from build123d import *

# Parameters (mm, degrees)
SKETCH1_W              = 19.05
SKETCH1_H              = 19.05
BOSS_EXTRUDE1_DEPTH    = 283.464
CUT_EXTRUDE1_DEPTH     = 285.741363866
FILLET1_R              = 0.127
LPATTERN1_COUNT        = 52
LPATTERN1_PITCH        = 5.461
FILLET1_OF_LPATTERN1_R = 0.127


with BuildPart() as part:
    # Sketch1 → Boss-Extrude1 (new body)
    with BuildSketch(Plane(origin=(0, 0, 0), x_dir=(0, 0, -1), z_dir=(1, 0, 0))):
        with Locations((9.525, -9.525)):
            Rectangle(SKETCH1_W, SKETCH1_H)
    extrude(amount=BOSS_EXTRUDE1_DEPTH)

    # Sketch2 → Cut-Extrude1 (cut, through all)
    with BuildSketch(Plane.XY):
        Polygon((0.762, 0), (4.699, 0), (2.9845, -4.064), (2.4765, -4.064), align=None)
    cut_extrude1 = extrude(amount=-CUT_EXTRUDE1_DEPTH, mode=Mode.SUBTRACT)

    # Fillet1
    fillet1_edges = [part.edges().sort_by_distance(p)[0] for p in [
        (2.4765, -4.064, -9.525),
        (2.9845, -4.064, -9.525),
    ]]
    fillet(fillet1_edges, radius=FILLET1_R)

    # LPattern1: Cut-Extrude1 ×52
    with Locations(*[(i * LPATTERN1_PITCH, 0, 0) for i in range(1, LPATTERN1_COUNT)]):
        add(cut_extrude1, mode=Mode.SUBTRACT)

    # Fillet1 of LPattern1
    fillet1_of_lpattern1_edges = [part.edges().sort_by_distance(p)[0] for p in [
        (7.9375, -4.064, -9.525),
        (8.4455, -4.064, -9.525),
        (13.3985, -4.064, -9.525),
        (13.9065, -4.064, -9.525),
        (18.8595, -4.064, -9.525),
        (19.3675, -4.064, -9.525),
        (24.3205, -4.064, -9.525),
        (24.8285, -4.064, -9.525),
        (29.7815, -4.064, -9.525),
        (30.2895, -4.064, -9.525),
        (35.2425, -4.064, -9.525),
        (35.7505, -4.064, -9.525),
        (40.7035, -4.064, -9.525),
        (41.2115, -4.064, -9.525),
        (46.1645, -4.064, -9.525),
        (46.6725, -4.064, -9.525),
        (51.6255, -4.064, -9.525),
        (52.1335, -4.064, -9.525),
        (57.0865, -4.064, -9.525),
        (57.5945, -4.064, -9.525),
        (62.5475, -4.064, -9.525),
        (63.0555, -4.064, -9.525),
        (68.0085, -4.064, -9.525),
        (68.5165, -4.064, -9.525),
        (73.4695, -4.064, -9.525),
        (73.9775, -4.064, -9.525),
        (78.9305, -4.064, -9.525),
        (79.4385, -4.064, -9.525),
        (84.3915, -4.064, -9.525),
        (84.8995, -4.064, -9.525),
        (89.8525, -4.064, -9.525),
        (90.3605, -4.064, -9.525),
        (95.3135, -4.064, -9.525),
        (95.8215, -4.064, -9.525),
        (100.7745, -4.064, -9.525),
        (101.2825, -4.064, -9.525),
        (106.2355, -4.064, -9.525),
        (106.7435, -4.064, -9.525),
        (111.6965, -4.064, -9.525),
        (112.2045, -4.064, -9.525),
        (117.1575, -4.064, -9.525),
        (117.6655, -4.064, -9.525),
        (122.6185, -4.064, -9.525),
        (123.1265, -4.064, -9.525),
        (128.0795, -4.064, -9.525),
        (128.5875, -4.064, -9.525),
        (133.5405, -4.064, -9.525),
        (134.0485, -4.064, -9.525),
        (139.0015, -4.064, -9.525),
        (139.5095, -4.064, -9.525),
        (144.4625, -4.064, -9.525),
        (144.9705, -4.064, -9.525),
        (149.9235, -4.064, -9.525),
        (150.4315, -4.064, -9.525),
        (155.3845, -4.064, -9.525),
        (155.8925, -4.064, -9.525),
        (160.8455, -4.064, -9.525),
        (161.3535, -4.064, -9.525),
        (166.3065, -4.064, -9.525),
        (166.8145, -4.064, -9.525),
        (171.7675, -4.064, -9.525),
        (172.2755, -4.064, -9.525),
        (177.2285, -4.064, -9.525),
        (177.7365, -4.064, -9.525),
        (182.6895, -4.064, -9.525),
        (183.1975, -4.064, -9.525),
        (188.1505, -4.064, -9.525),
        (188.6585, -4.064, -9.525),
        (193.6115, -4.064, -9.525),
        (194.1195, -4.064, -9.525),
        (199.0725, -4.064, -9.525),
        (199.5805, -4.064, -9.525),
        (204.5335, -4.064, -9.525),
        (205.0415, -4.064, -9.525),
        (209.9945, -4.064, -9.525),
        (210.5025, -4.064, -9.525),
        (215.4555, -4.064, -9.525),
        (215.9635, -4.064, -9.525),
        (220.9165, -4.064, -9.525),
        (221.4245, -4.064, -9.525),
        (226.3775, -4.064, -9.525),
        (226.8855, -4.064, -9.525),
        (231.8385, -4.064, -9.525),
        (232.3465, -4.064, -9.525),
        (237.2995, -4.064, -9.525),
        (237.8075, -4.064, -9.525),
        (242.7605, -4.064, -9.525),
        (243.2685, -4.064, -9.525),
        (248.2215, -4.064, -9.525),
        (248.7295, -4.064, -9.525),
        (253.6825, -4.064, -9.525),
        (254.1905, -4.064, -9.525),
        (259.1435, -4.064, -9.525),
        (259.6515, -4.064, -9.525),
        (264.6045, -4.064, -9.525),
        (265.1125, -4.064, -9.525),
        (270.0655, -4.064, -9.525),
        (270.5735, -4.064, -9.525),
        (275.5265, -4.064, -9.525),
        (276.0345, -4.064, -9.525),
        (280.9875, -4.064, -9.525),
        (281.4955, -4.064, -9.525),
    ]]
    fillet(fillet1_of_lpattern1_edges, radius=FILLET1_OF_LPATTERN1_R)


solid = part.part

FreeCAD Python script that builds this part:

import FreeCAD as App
import Part
import Sketcher

V = App.Vector
Q = App.Units.Quantity


def edges_at(feature, points):
    """Names of the edges that pass closest to the given points."""
    edges = feature.Shape.Edges
    near = lambda p: min(range(len(edges)), key=lambda i: edges[i].distToShape(Part.Vertex(*p))[0])
    return sorted({f"Edge{near(p) + 1}" for p in points})

doc = App.newDocument("Part")
body = doc.addObject("PartDesign::Body", "Body")

# Sketch on YZ plane
sketch1 = body.newObject("Sketcher::SketchObject", "Sketch")
sketch1.AttachmentSupport = (doc.getObject("YZ_Plane"), [""])
sketch1.MapMode = "FlatFace"
sketch1.addGeometry(Part.LineSegment(V(0, 0, 0), V(-19, 0, 0)), False)
sketch1.addGeometry(Part.LineSegment(V(-19, 0, 0), V(-19, -19, 0)), False)
sketch1.addGeometry(Part.LineSegment(V(-19, -19, 0), V(0, -19, 0)), False)
sketch1.addGeometry(Part.LineSegment(V(0, -19, 0), V(0, 0, 0)), False)
sketch1.addConstraint(Sketcher.Constraint("Coincident", 0, 2, 1, 1))
sketch1.addConstraint(Sketcher.Constraint("Coincident", 1, 2, 2, 1))
sketch1.addConstraint(Sketcher.Constraint("Coincident", 2, 2, 3, 1))
sketch1.addConstraint(Sketcher.Constraint("Coincident", 3, 2, 0, 1))
sketch1.addConstraint(Sketcher.Constraint("Horizontal", 0))
sketch1.addConstraint(Sketcher.Constraint("Vertical", 1))
sketch1.addConstraint(Sketcher.Constraint("Horizontal", 2))
sketch1.addConstraint(Sketcher.Constraint("Vertical", 3))
sketch1.addConstraint(Sketcher.Constraint("Coincident", 3, 2, -1, 1))
sketch1.addConstraint(Sketcher.Constraint("Equal", 2, 1))
sketch1.addConstraint(Sketcher.Constraint("DistanceX", 0, 2, 0, 1, Q("0.75 in")))
pad1 = body.newObject("PartDesign::Pad", "Pad")
pad1.Profile = sketch1
pad1.Length = Q("11.16 in")

# Sketch on XY plane
sketch2 = body.newObject("Sketcher::SketchObject", "Sketch001")
sketch2.AttachmentSupport = (doc.getObject("XY_Plane"), [""])
sketch2.MapMode = "FlatFace"
sketch2.addGeometry(Part.LineSegment(V(4.7, 0, 0), V(0.8, 0, 0)), False)
sketch2.addGeometry(Part.LineSegment(V(0.8, 0, 0), V(2.5, -4.1, 0)), False)
sketch2.addGeometry(Part.LineSegment(V(2.5, -4.1, 0), V(3, -4.1, 0)), False)
sketch2.addGeometry(Part.LineSegment(V(3, -4.1, 0), V(4.7, 0, 0)), False)
sketch2.addConstraint(Sketcher.Constraint("Coincident", 0, 2, 1, 1))
sketch2.addConstraint(Sketcher.Constraint("Coincident", 1, 2, 2, 1))
sketch2.addConstraint(Sketcher.Constraint("Coincident", 2, 2, 3, 1))
sketch2.addConstraint(Sketcher.Constraint("Coincident", 3, 2, 0, 1))
sketch2.addConstraint(Sketcher.Constraint("Horizontal", 0))
sketch2.addConstraint(Sketcher.Constraint("Horizontal", 2))
sketch2.addConstraint(Sketcher.Constraint("PointOnObject", 0, 2, -1))
sketch2.addConstraint(Sketcher.Constraint("Equal", 1, 3))
sketch2.addConstraint(Sketcher.Constraint("DistanceX", 2, 1, 2, 2, Q("0.02 in")))
sketch2.addConstraint(Sketcher.Constraint("DistanceX", 0, 2, 0, 1, Q("0.155 in")))
sketch2.addConstraint(Sketcher.Constraint("DistanceX", -1, 1, 0, 2, Q("0.03 in")))
sketch2.addConstraint(Sketcher.Constraint("DistanceY", 1, 2, -1, 1, Q("0.16 in")))
pocket1 = body.newObject("PartDesign::Pocket", "Pocket")
pocket1.Profile = sketch2
pocket1.Type = "ThroughAll"
doc.recompute()

fillet = body.newObject("PartDesign::Fillet", "Fillet")
fillet.Base = (pocket1, edges_at(pocket1, [(2.477, -4.064, -9.525), (2.985, -4.064, -9.525)]))
fillet.Radius = Q("0.005 in")
doc.recompute()

linearpattern = body.newObject("PartDesign::LinearPattern", "LinearPattern")
linearpattern.Originals = [pocket1]
linearpattern.Direction = (doc.getObject("X_Axis"), [""])
linearpattern.Mode = "offset"
linearpattern.Offset = Q("0.215 in")
linearpattern.Occurrences = 52
body.Tip = linearpattern
doc.recompute()

fillet2 = body.newObject("PartDesign::Fillet", "Fillet001")
fillet2.Base = (linearpattern, edges_at(linearpattern, [
    (7.938, -4.064, -9.525),
    (8.445, -4.064, -9.525),
    (13.399, -4.064, -9.525),
    (13.906, -4.064, -9.525),
    (18.86, -4.064, -9.525),
    (19.367, -4.064, -9.525),
    (24.32, -4.064, -9.525),
    (24.828, -4.064, -9.525),
    (29.782, -4.064, -9.525),
    (30.29, -4.064, -9.525),
    (35.242, -4.064, -9.525),
    (35.751, -4.064, -9.525),
    (40.703, -4.064, -9.525),
    (41.212, -4.064, -9.525),
    (46.164, -4.064, -9.525),
    (46.672, -4.064, -9.525),
    (51.626, -4.064, -9.525),
    (52.133, -4.064, -9.525),
    (57.087, -4.064, -9.525),
    (57.594, -4.064, -9.525),
    (62.547, -4.064, -9.525),
    (63.056, -4.064, -9.525),
    (68.008, -4.064, -9.525),
    (68.516, -4.064, -9.525),
    (73.469, -4.064, -9.525),
    (73.978, -4.064, -9.525),
    (78.93, -4.064, -9.525),
    (79.439, -4.064, -9.525),
    (84.391, -4.064, -9.525),
    (84.9, -4.064, -9.525),
    (89.853, -4.064, -9.525),
    (90.361, -4.064, -9.525),
    (95.314, -4.064, -9.525),
    (95.822, -4.064, -9.525),
    (100.775, -4.064, -9.525),
    (101.282, -4.064, -9.525),
    (106.236, -4.064, -9.525),
    (106.743, -4.064, -9.525),
    (111.697, -4.064, -9.525),
    (112.204, -4.064, -9.525),
    (117.157, -4.064, -9.525),
    (117.665, -4.064, -9.525),
    (122.618, -4.064, -9.525),
    (123.126, -4.064, -9.525),
    (128.079, -4.064, -9.525),
    (128.588, -4.064, -9.525),
    (133.541, -4.064, -9.525),
    (134.048, -4.064, -9.525),
    (139.001, -4.064, -9.525),
    (139.51, -4.064, -9.525),
    (144.463, -4.064, -9.525),
    (144.97, -4.064, -9.525),
    (149.923, -4.064, -9.525),
    (150.431, -4.064, -9.525),
    (155.385, -4.064, -9.525),
    (155.893, -4.064, -9.525),
    (160.845, -4.064, -9.525),
    (161.353, -4.064, -9.525),
    (166.306, -4.064, -9.525),
    (166.815, -4.064, -9.525),
    (171.768, -4.064, -9.525),
    (172.275, -4.064, -9.525),
    (177.228, -4.064, -9.525),
    (177.737, -4.064, -9.525),
    (182.69, -4.064, -9.525),
    (183.197, -4.064, -9.525),
    (188.15, -4.064, -9.525),
    (188.659, -4.064, -9.525),
    (193.612, -4.064, -9.525),
    (194.119, -4.064, -9.525),
    (199.072, -4.064, -9.525),
    (199.581, -4.064, -9.525),
    (204.534, -4.064, -9.525),
    (205.042, -4.064, -9.525),
    (209.994, -4.064, -9.525),
    (210.502, -4.064, -9.525),
    (215.456, -4.064, -9.525),
    (215.964, -4.064, -9.525),
    (220.917, -4.064, -9.525),
    (221.424, -4.064, -9.525),
    (226.377, -4.064, -9.525),
    (226.886, -4.064, -9.525),
    (231.839, -4.064, -9.525),
    (232.346, -4.064, -9.525),
    (237.299, -4.064, -9.525),
    (237.808, -4.064, -9.525),
    (242.761, -4.064, -9.525),
    (243.268, -4.064, -9.525),
    (248.221, -4.064, -9.525),
    (248.73, -4.064, -9.525),
    (253.683, -4.064, -9.525),
    (254.19, -4.064, -9.525),
    (259.144, -4.064, -9.525),
    (259.651, -4.064, -9.525),
    (264.604, -4.064, -9.525),
    (265.113, -4.064, -9.525),
    (270.065, -4.064, -9.525),
    (270.574, -4.064, -9.525),
    (275.526, -4.064, -9.525),
    (276.034, -4.064, -9.525),
    (280.988, -4.064, -9.525),
    (281.495, -4.064, -9.525),
]))
fillet2.Radius = Q("0.005 in")

doc.recompute()
